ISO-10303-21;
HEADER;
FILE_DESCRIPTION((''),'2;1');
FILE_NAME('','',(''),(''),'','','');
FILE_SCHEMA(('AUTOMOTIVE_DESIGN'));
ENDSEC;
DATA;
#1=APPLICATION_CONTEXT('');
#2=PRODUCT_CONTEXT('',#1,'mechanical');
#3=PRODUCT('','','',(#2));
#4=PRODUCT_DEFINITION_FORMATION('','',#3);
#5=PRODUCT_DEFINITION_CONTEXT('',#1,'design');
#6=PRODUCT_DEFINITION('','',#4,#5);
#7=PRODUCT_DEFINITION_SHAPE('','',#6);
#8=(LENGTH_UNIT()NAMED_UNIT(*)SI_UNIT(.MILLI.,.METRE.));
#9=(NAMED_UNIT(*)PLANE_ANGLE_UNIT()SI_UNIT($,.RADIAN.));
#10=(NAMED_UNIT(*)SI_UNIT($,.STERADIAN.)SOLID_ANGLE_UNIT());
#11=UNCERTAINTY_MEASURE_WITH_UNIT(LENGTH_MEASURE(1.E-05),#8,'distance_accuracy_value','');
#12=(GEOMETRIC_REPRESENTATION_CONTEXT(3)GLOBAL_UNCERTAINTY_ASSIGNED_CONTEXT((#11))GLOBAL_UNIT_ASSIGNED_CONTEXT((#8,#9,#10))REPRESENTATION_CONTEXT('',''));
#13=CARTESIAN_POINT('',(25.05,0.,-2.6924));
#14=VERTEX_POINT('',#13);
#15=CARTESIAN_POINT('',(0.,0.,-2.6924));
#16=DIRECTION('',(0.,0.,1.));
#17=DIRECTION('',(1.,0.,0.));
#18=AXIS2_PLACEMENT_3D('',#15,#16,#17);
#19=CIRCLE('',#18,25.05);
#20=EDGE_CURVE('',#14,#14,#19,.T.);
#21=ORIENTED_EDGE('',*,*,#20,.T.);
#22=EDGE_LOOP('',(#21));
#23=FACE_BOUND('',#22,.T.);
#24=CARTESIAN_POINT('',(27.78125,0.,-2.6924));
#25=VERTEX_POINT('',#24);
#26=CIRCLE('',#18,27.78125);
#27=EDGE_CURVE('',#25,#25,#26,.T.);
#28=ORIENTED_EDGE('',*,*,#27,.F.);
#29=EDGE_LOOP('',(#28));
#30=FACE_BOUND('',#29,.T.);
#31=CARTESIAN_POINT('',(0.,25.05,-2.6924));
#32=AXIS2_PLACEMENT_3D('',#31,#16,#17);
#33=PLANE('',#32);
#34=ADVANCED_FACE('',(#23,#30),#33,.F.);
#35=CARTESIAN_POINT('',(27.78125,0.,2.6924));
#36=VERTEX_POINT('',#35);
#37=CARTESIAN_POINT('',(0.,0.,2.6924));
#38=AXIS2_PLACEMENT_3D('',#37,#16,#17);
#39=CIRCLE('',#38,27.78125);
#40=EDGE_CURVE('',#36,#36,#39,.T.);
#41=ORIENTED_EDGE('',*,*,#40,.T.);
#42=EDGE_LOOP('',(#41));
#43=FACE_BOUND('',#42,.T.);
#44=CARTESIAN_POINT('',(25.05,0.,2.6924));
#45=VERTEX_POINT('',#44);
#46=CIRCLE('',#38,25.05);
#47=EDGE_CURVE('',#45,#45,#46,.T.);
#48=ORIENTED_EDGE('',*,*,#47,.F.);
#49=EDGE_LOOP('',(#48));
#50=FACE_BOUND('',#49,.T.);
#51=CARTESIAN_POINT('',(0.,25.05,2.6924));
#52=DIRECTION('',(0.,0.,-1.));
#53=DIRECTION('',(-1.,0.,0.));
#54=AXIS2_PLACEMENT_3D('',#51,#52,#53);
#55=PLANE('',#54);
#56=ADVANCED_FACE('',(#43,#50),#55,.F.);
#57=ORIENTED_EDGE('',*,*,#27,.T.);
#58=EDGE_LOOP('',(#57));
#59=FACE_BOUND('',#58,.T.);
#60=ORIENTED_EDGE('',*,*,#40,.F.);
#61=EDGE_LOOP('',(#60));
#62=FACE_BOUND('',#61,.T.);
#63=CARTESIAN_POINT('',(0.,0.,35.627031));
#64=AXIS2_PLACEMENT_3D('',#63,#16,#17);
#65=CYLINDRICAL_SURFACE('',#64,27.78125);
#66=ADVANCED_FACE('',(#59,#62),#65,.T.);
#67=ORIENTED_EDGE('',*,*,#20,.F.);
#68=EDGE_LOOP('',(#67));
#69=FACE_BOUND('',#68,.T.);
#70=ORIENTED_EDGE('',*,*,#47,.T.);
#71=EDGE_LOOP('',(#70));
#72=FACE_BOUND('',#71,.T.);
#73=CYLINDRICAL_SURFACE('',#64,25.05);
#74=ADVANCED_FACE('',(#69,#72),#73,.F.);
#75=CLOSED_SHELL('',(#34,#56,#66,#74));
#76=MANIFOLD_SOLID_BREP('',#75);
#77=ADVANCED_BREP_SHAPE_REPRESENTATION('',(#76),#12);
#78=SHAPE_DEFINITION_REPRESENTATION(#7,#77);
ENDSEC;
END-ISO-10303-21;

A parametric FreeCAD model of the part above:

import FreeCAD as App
import Part
import Sketcher

V = App.Vector
Q = App.Units.Quantity


def add_polygon(sketch, points):
    """Adds a closed chain of lines whose ends are joined by coincident constraints."""
    first, n = sketch.GeometryCount, len(points)
    for a, b in zip(points, points[1:] + points[:1]):
        sketch.addGeometry(Part.LineSegment(App.Vector(*a, 0), App.Vector(*b, 0)), False)
    for i in range(n):
        sketch.addConstraint(Sketcher.Constraint("Coincident", first + i, 2, first + (i + 1) % n, 1))

doc = App.newDocument("Part")
params = doc.addObject("Spreadsheet::Sheet", "Params")
for row, (alias, value) in enumerate([
    ("sketch1_height", "0.212 in"),
    ("revolution_angle", "360 deg"),
], start=1):
    params.set(f"A{row}", alias)
    params.set(f"B{row}", "=" + value)
    params.setAlias(f"B{row}", alias)

body = doc.addObject("PartDesign::Body", "Body")

sketch1 = doc.addObject("Sketcher::SketchObject", "Sketch")
body.addObject(sketch1)
sketch1.AttachmentSupport = (doc.YZ_Plane, [""])
sketch1.MapMode = "FlatFace"
add_polygon(sketch1, [(27.8, 2.7), (25.1, 2.7), (25.1, -2.7), (27.8, -2.7)])
sketch1.addConstraint([
    Sketcher.Constraint("Horizontal", 0),
    Sketcher.Constraint("Vertical", 1),
    Sketcher.Constraint("Horizontal", 2),
    Sketcher.Constraint("Vertical", 3),
    Sketcher.Constraint("DistanceY", 1, 2, 1, 1, Q("0.212 in")),
    Sketcher.Constraint("DistanceY", -1, 1, 0, 2, Q("0.106 in")),
    Sketcher.Constraint("DistanceX", -1, 1, 2, 2, Q("1.09375 in")),
    Sketcher.Constraint("DistanceX", 0, 2, 0, 1, 2.73125),
])
sketch1.setExpression("Constraints[8]", "Params.sketch1_height")
revolution = doc.addObject("PartDesign::Revolution", "Revolution")
body.addObject(revolution)
revolution.Profile = sketch1
revolution.ReferenceAxis = (sketch1, ["V_Axis"])
revolution.setExpression("Angle", "Params.revolution_angle")

doc.recompute()
